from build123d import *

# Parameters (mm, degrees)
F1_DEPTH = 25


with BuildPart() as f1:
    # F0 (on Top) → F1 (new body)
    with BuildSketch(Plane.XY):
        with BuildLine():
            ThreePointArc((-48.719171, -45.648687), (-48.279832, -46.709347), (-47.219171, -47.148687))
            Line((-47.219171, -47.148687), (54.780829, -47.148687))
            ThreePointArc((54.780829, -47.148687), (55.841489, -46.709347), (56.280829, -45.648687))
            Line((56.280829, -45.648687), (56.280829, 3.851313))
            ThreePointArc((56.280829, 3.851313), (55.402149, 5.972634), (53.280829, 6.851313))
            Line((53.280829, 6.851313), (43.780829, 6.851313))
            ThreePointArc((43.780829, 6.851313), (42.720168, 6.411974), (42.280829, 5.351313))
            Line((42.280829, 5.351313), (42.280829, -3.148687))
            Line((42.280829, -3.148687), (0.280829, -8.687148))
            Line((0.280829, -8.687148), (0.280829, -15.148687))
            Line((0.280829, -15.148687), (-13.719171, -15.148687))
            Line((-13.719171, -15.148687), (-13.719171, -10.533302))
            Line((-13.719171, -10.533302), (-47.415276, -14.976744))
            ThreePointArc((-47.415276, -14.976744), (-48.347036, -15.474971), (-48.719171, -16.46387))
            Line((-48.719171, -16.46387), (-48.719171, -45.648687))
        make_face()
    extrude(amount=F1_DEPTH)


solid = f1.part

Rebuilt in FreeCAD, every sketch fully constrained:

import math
import FreeCAD as App
import Part
import Sketcher
Q = App.Units.Quantity

doc = App.newDocument("Part")
body = doc.addObject("PartDesign::Body", "Body")

sketch1 = body.newObject("Sketcher::SketchObject", "Sketch")
sketch1.AttachmentSupport = (doc.getObject("XY_Plane"), [""])
sketch1.MapMode = "FlatFace"
sketch1.addGeometry(Part.ArcOfCircle(Part.Circle(App.Vector(-47.2, -45.6, 0), App.Vector(0, 0, 1), 1.5), math.radians(180), math.radians(270)), False)
sketch1.addGeometry(Part.LineSegment(App.Vector(-47.2, -47.1, 0), App.Vector(54.8, -47.1, 0)), False)
sketch1.addGeometry(Part.ArcOfCircle(Part.Circle(App.Vector(54.8, -45.6, 0), App.Vector(0, 0, 1), 1.5), math.radians(-90), math.radians(0)), False)
sketch1.addGeometry(Part.LineSegment(App.Vector(56.3, -45.6, 0), App.Vector(56.3, 3.9, 0)), False)
sketch1.addGeometry(Part.ArcOfCircle(Part.Circle(App.Vector(53.3, 3.9, 0), App.Vector(0, 0, 1), 3), math.radians(0), math.radians(90)), False)
sketch1.addGeometry(Part.LineSegment(App.Vector(53.3, 6.9, 0), App.Vector(43.8, 6.9, 0)), False)
sketch1.addGeometry(Part.ArcOfCircle(Part.Circle(App.Vector(43.8, 5.4, 0), App.Vector(0, 0, 1), 1.5), math.radians(90), math.radians(180)), False)
sketch1.addGeometry(Part.LineSegment(App.Vector(42.3, 5.4, 0), App.Vector(42.3, -3.1, 0)), False)
sketch1.addGeometry(Part.LineSegment(App.Vector(42.3, -3.1, 0), App.Vector(0.3, -8.7, 0)), False)
sketch1.addGeometry(Part.LineSegment(App.Vector(0.3, -8.7, 0), App.Vector(0.3, -15.1, 0)), False)
sketch1.addGeometry(Part.LineSegment(App.Vector(0.3, -15.1, 0), App.Vector(-13.7, -15.1, 0)), False)
sketch1.addGeometry(Part.LineSegment(App.Vector(-13.7, -15.1, 0), App.Vector(-13.7, -10.5, 0)), False)
sketch1.addGeometry(Part.LineSegment(App.Vector(-13.7, -10.5, 0), App.Vector(-47.4, -15, 0)), False)
sketch1.addGeometry(Part.ArcOfCircle(Part.Circle(App.Vector(-47.2, -16.5, 0), App.Vector(0, 0, 1), 1.5), math.radians(98), math.radians(180)), False)
sketch1.addGeometry(Part.LineSegment(App.Vector(-48.7, -16.5, 0), App.Vector(-48.7, -45.6, 0)), False)
sketch1.addConstraint(Sketcher.Constraint("Tangent", 0, 2, 1, 1))
sketch1.addConstraint(Sketcher.Constraint("Tangent", 1, 2, 2, 1))
sketch1.addConstraint(Sketcher.Constraint("Tangent", 2, 2, 3, 1))
sketch1.addConstraint(Sketcher.Constraint("Tangent", 3, 2, 4, 1))
sketch1.addConstraint(Sketcher.Constraint("Tangent", 4, 2, 5, 1))
sketch1.addConstraint(Sketcher.Constraint("Tangent", 5, 2, 6, 1))
sketch1.addConstraint(Sketcher.Constraint("Tangent", 6, 2, 7, 1))
sketch1.addConstraint(Sketcher.Constraint("Coincident", 7, 2, 8, 1))
sketch1.addConstraint(Sketcher.Constraint("Coincident", 8, 2, 9, 1))
sketch1.addConstraint(Sketcher.Constraint("Coincident", 9, 2, 10, 1))
sketch1.addConstraint(Sketcher.Constraint("Coincident", 10, 2, 11, 1))
sketch1.addConstraint(Sketcher.Constraint("Coincident", 11, 2, 12, 1))
sketch1.addConstraint(Sketcher.Constraint("Tangent", 12, 2, 13, 1))
sketch1.addConstraint(Sketcher.Constraint("Tangent", 13, 2, 14, 1))
sketch1.addConstraint(Sketcher.Constraint("Tangent", 14, 2, 0, 1))
sketch1.addConstraint(Sketcher.Constraint("Horizontal", 1))
sketch1.addConstraint(Sketcher.Constraint("Vertical", 3))
sketch1.addConstraint(Sketcher.Constraint("Horizontal", 5))
sketch1.addConstraint(Sketcher.Constraint("Vertical", 7))
sketch1.addConstraint(Sketcher.Constraint("Vertical", 9))
sketch1.addConstraint(Sketcher.Constraint("Horizontal", 10))
sketch1.addConstraint(Sketcher.Constraint("Vertical", 11))
sketch1.addConstraint(Sketcher.Constraint("Vertical", 14))
sketch1.addConstraint(Sketcher.Constraint("Equal", 0, 2))
sketch1.addConstraint(Sketcher.Constraint("Equal", 0, 6))
sketch1.addConstraint(Sketcher.Constraint("Equal", 2, 13))
sketch1.addConstraint(Sketcher.Constraint("Parallel", 8, 12))
sketch1.addConstraint(Sketcher.Constraint("Radius", 4, Q("2.999999 mm")))
sketch1.addConstraint(Sketcher.Constraint("Radius", 0, Q("1.499999 mm")))
sketch1.addConstraint(Sketcher.Constraint("DistanceX", 1, 1, 1, 2, Q("102 mm")))
sketch1.addConstraint(Sketcher.Constraint("DistanceX", 10, 2, 10, 1, Q("14 mm")))
sketch1.addConstraint(Sketcher.Constraint("DistanceX", 5, 2, 5, 1, Q("9.5 mm")))
sketch1.addConstraint(Sketcher.Constraint("DistanceY", 3, 1, 3, 2, Q("49.5 mm")))
sketch1.addConstraint(Sketcher.Constraint("DistanceY", 7, 2, 7, 1, Q("8.5 mm")))
sketch1.addConstraint(Sketcher.Constraint("DistanceX", 8, 2, 7, 2, Q("42 mm")))
sketch1.addConstraint(Sketcher.Constraint("DistanceY", 9, 2, 7, 2, Q("12 mm")))
sketch1.addConstraint(Sketcher.Constraint("Distance", 8, Q("42.363599 mm")))
sketch1.addConstraint(Sketcher.Constraint("DistanceY", 11, 1, 11, 2, Q("4.615385 mm")))
sketch1.addConstraint(Sketcher.Constraint("DistanceY", 0, 3, -1, 1, Q("45.648688 mm")))
sketch1.addConstraint(Sketcher.Constraint("DistanceX", -1, 1, 2, 3, Q("54.780828 mm")))
pad1 = body.newObject("PartDesign::Pad", "Pad")
pad1.Profile = sketch1
pad1.Length = 25

doc.recompute()
